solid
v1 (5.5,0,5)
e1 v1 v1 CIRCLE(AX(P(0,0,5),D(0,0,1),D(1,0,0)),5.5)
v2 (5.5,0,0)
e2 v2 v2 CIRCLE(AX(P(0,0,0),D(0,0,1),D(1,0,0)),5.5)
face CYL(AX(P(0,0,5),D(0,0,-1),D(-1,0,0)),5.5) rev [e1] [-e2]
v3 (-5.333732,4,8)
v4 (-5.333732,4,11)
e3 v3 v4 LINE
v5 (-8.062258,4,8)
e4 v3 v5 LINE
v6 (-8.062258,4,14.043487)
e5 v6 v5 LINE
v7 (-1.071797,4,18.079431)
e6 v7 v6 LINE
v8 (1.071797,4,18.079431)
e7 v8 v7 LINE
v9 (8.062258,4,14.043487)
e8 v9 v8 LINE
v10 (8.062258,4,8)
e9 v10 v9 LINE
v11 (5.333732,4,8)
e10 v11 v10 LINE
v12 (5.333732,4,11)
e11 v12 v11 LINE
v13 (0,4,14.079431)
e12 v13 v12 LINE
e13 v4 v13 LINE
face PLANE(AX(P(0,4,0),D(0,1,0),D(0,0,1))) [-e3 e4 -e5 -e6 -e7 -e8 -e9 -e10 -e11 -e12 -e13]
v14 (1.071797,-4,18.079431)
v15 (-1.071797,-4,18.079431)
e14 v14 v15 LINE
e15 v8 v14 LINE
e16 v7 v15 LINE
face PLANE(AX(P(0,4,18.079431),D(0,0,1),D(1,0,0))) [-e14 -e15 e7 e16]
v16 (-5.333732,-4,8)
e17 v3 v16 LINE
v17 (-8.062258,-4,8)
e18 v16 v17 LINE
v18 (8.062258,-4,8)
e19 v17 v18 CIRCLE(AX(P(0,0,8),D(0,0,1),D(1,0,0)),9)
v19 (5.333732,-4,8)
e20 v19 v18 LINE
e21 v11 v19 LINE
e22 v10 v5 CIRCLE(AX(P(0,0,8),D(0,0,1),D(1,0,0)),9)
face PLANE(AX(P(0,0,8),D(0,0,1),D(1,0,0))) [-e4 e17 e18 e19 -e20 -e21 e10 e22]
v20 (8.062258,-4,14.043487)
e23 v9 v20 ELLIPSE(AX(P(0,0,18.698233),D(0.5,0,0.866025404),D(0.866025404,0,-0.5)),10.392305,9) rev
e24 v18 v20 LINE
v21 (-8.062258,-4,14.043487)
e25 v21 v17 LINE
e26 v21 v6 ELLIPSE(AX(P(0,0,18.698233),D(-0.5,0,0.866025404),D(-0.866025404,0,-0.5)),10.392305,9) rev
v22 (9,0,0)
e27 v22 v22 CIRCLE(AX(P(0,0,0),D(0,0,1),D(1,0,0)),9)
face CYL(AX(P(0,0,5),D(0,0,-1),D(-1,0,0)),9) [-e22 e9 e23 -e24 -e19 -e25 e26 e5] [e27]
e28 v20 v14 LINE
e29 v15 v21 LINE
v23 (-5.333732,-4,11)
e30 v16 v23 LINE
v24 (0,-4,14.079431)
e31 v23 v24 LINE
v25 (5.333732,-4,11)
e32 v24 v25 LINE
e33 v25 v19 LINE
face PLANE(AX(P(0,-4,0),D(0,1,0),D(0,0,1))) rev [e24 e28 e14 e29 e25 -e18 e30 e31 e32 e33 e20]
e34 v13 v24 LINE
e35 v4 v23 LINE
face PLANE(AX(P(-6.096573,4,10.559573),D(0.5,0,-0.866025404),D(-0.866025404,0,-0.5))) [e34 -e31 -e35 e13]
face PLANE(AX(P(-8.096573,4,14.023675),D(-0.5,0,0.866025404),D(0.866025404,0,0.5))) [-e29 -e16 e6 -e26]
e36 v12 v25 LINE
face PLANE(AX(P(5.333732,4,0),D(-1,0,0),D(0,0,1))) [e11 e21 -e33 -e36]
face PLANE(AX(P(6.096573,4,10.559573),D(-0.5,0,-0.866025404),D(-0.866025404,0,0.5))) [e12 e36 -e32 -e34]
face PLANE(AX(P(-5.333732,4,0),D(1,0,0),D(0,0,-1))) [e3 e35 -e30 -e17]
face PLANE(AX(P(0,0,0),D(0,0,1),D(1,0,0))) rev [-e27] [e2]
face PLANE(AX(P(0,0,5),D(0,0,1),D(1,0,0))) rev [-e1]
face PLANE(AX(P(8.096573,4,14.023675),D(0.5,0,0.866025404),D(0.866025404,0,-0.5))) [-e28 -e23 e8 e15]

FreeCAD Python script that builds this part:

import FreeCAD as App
import Part
import Sketcher
Q = App.Units.Quantity

doc = App.newDocument("Part")
body = doc.addObject("PartDesign::Body", "Body")

# Sketch on XY plane
sketch1 = body.newObject("Sketcher::SketchObject", "Sketch")
sketch1.AttachmentSupport = (doc.getObject("XY_Plane"), [""])
sketch1.MapMode = "FlatFace"
sketch1.addGeometry([
    Part.Circle(App.Vector(0, 0, 0), App.Vector(0, 0, 1), 9),
    Part.Circle(App.Vector(0, 0, 0), App.Vector(0, 0, 1), 5.5),
], False)
sketch1.addConstraint([
    Sketcher.Constraint("Coincident", 0, 3, -1, 1),
    Sketcher.Constraint("Coincident", 1, 3, -1, 1),
    Sketcher.Constraint("Diameter", 0, Q("18 mm")),
    Sketcher.Constraint("Diameter", 1, Q("11 mm")),
])
pad1 = body.newObject("PartDesign::Pad", "Pad")
pad1.Profile = sketch1
pad1.Length = 5

# Sketch on XY plane
sketch2 = body.newObject("Sketcher::SketchObject", "Sketch001")
sketch2.AttachmentSupport = (doc.getObject("XY_Plane"), [""])
sketch2.MapMode = "FlatFace"
sketch2.AttachmentOffset = App.Placement(App.Vector(0, 0, 5), App.Rotation())
sketch2.addGeometry(Part.Circle(App.Vector(0, 0, 0), App.Vector(0, 0, 1), 9), False)
sketch2.addConstraint([
    Sketcher.Constraint("Coincident", 0, 3, -1, 1),
    Sketcher.Constraint("Diameter", 0, Q("18 mm")),
])
pad2 = body.newObject("PartDesign::Pad", "Pad001")
pad2.Profile = sketch2
pad2.Length = 3

# Sketch on XZ plane
sketch3 = body.newObject("Sketcher::SketchObject", "Sketch002")
sketch3.AttachmentSupport = (doc.getObject("XZ_Plane"), [""])
sketch3.MapMode = "FlatFace"
sketch3.addGeometry([
    Part.LineSegment(App.Vector(-5.333732, 11, 0), App.Vector(-5.333732, 8, 0)),  # 0
    Part.LineSegment(App.Vector(-5.333732, 8, 0), App.Vector(-9, 8, 0)),  # 1
    Part.LineSegment(App.Vector(-9, 8, 0), App.Vector(-9, 13.502081, 0)),  # 2
    Part.LineSegment(App.Vector(-9, 13.502081, 0), App.Vector(-1.071797, 18.079431, 0)),  # 3
    Part.LineSegment(App.Vector(-1.071797, 18.079431, 0), App.Vector(1.071797, 18.079431, 0)),  # 4
    Part.LineSegment(App.Vector(1.071797, 18.079431, 0), App.Vector(9, 13.502081, 0)),  # 5
    Part.LineSegment(App.Vector(9, 13.502081, 0), App.Vector(9, 8, 0)),  # 6
    Part.LineSegment(App.Vector(9, 8, 0), App.Vector(5.333732, 8, 0)),  # 7
    Part.LineSegment(App.Vector(5.333732, 8, 0), App.Vector(5.333732, 11, 0)),  # 8
    Part.LineSegment(App.Vector(5.333732, 11, 0), App.Vector(0, 14.079431, 0)),  # 9
    Part.LineSegment(App.Vector(0, 14.079431, 0), App.Vector(-5.333732, 11, 0)),  # 10
], False)
sketch3.addConstraint([
    Sketcher.Constraint("Coincident", 0, 2, 1, 1),
    Sketcher.Constraint("Coincident", 1, 2, 2, 1),
    Sketcher.Constraint("Coincident", 2, 2, 3, 1),
    Sketcher.Constraint("Coincident", 3, 2, 4, 1),
    Sketcher.Constraint("Coincident", 4, 2, 5, 1),
    Sketcher.Constraint("Coincident", 5, 2, 6, 1),
    Sketcher.Constraint("Coincident", 6, 2, 7, 1),
    Sketcher.Constraint("Coincident", 7, 2, 8, 1),
    Sketcher.Constraint("Coincident", 8, 2, 9, 1),
    Sketcher.Constraint("Coincident", 9, 2, 10, 1),
    Sketcher.Constraint("Coincident", 10, 2, 0, 1),
    Sketcher.Constraint("Vertical", 0),
    Sketcher.Constraint("Horizontal", 1),
    Sketcher.Constraint("Vertical", 2),
    Sketcher.Constraint("Horizontal", 4),
    Sketcher.Constraint("Vertical", 6),
    Sketcher.Constraint("Horizontal", 7),
    Sketcher.Constraint("Vertical", 8),
    Sketcher.Constraint("Symmetric", 2, 2, 5, 2, -2),
    Sketcher.Constraint("Symmetric", 0, 2, 7, 2, -2),
    Sketcher.Constraint("PointOnObject", 9, 2, -2),
    Sketcher.Constraint("Parallel", 5, 9),
    Sketcher.Constraint("Parallel", 3, 10),
    Sketcher.Constraint("Horizontal", 8, 2, 10, 2),
    Sketcher.Constraint("DistanceY", 0, 2, 0, 1, Q("3 mm")),
    Sketcher.Constraint("Angle", 3, Q("30 deg")),
    Sketcher.Constraint("DistanceY", -1, 1, 0, 2, Q("8 mm")),
    Sketcher.Constraint("DistanceX", 1, 2, -1, 1, Q("9 mm")),
    Sketcher.Constraint("DistanceY", 9, 2, 3, 2, Q("4 mm")),
    Sketcher.Constraint("Distance", 3, Q("9.154701 mm")),
    Sketcher.Constraint("DistanceX", 1, 2, 1, 1, Q("3.666268 mm")),
])
pad3 = body.newObject("PartDesign::Pad", "Pad002")
pad3.Profile = sketch3
pad3.Length = 8
pad3.Midplane = True

# Sketch on XY plane
sketch4 = body.newObject("Sketcher::SketchObject", "Sketch003")
sketch4.AttachmentSupport = (doc.getObject("XY_Plane"), [""])
sketch4.MapMode = "FlatFace"
sketch4.AttachmentOffset = App.Placement(App.Vector(0, 0, 8), App.Rotation())
sketch4.addGeometry([
    Part.LineSegment(App.Vector(-13.122, 13.122, 0), App.Vector(-13.122, -13.122, 0)),  # 0
    Part.LineSegment(App.Vector(-13.122, -13.122, 0), App.Vector(13.122, -13.122, 0)),  # 1
    Part.LineSegment(App.Vector(13.122, -13.122, 0), App.Vector(13.122, 13.122, 0)),  # 2
    Part.LineSegment(App.Vector(13.122, 13.122, 0), App.Vector(-13.122, 13.122, 0)),  # 3
    Part.Circle(App.Vector(0, 0, 0), App.Vector(0, 0, 1), 9),  # 4
], False)
sketch4.addConstraint([
    Sketcher.Constraint("Coincident", 0, 2, 1, 1),
    Sketcher.Constraint("Coincident", 1, 2, 2, 1),
    Sketcher.Constraint("Coincident", 2, 2, 3, 1),
    Sketcher.Constraint("Coincident", 3, 2, 0, 1),
    Sketcher.Constraint("Vertical", 0),
    Sketcher.Constraint("Horizontal", 1),
    Sketcher.Constraint("Vertical", 2),
    Sketcher.Constraint("Horizontal", 3),
    Sketcher.Constraint("Coincident", 4, 3, -1, 1),
    Sketcher.Constraint("Symmetric", 0, 2, 2, 2, -1, 1),
    Sketcher.Constraint("Equal", 3, 0),
    Sketcher.Constraint("Diameter", 4, Q("18 mm")),
    Sketcher.Constraint("DistanceX", 1, 1, 1, 2, Q("26.244 mm")),
])
pocket1 = body.newObject("PartDesign::Pocket", "Pocket")
pocket1.Profile = sketch4
pocket1.Type = "ThroughAll"
pocket1.Reversed = True

doc.recompute()
